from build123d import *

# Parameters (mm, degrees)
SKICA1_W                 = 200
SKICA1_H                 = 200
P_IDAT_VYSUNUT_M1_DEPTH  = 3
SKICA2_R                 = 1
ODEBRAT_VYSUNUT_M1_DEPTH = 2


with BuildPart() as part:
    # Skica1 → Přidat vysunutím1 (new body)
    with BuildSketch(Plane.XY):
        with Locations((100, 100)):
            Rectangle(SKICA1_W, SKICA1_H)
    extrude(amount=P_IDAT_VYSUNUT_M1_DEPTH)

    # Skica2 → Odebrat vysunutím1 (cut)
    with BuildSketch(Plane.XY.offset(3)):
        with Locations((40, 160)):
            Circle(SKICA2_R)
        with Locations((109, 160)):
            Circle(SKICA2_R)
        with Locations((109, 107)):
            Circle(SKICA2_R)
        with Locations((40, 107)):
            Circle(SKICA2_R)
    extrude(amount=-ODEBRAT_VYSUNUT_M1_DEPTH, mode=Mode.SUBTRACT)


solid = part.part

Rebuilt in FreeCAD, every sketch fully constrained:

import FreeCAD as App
import Part
import Sketcher

doc = App.newDocument("Part")
body = doc.addObject("PartDesign::Body", "Body")

# Sketch on XY plane
sketch1 = body.newObject("Sketcher::SketchObject", "Sketch")
sketch1.AttachmentSupport = (doc.getObject("XY_Plane"), [""])
sketch1.MapMode = "FlatFace"
sketch1.addGeometry(Part.LineSegment(App.Vector(0, 200, 0), App.Vector(0, 0, 0)), False)
sketch1.addGeometry(Part.LineSegment(App.Vector(0, 0, 0), App.Vector(200, 0, 0)), False)
sketch1.addGeometry(Part.LineSegment(App.Vector(200, 0, 0), App.Vector(200, 200, 0)), False)
sketch1.addGeometry(Part.LineSegment(App.Vector(200, 200, 0), App.Vector(0, 200, 0)), False)
sketch1.addConstraint(Sketcher.Constraint("Coincident", 0, 2, 1, 1))
sketch1.addConstraint(Sketcher.Constraint("Coincident", 1, 2, 2, 1))
sketch1.addConstraint(Sketcher.Constraint("Coincident", 2, 2, 3, 1))
sketch1.addConstraint(Sketcher.Constraint("Coincident", 3, 2, 0, 1))
sketch1.addConstraint(Sketcher.Constraint("Vertical", 0))
sketch1.addConstraint(Sketcher.Constraint("Horizontal", 1))
sketch1.addConstraint(Sketcher.Constraint("Vertical", 2))
sketch1.addConstraint(Sketcher.Constraint("Horizontal", 3))
sketch1.addConstraint(Sketcher.Constraint("Coincident", 0, 2, -1, 1))
sketch1.addConstraint(Sketcher.Constraint("Equal", 3, 0))
sketch1.addConstraint(Sketcher.Constraint("DistanceX", 1, 1, 1, 2, 200.0))
pad1 = body.newObject("PartDesign::Pad", "Pad")
pad1.Profile = sketch1
pad1.Length = 3

# Sketch on XY plane
sketch2 = body.newObject("Sketcher::SketchObject", "Sketch001")
sketch2.AttachmentSupport = (doc.getObject("XY_Plane"), [""])
sketch2.MapMode = "FlatFace"
sketch2.AttachmentOffset = App.Placement(App.Vector(0, 0, 3), App.Rotation())
sketch2.addGeometry(Part.Circle(App.Vector(40, 160, 0), App.Vector(0, 0, 1), 1), False)
sketch2.addGeometry(Part.Circle(App.Vector(109, 160, 0), App.Vector(0, 0, 1), 1), False)
sketch2.addGeometry(Part.Circle(App.Vector(109, 107, 0), App.Vector(0, 0, 1), 1), False)
sketch2.addGeometry(Part.Circle(App.Vector(40, 107, 0), App.Vector(0, 0, 1), 1), False)
sketch2.addConstraint(Sketcher.Constraint("Equal", 0, 1))
sketch2.addConstraint(Sketcher.Constraint("Equal", 1, 2))
sketch2.addConstraint(Sketcher.Constraint("Equal", 2, 3))
sketch2.addConstraint(Sketcher.Constraint("Horizontal", 0, 3, 1, 3))
sketch2.addConstraint(Sketcher.Constraint("Horizontal", 2, 3, 3, 3))
sketch2.addConstraint(Sketcher.Constraint("Vertical", 1, 3, 2, 3))
sketch2.addConstraint(Sketcher.Constraint("Vertical", 0, 3, 3, 3))
sketch2.addConstraint(Sketcher.Constraint("Diameter", 0, 2.0))
sketch2.addConstraint(Sketcher.Constraint("DistanceX", -1, 1, 0, 3, 40.0))
sketch2.addConstraint(Sketcher.Constraint("DistanceY", -1, 1, 0, 3, 160.0))
sketch2.addConstraint(Sketcher.Constraint("DistanceX", -1, 1, 1, 3, 109.0))
sketch2.addConstraint(Sketcher.Constraint("DistanceY", -1, 1, 2, 3, 107.0))
pocket1 = body.newObject("PartDesign::Pocket", "Pocket")
pocket1.Profile = sketch2
pocket1.Length = 2

doc.recompute()
